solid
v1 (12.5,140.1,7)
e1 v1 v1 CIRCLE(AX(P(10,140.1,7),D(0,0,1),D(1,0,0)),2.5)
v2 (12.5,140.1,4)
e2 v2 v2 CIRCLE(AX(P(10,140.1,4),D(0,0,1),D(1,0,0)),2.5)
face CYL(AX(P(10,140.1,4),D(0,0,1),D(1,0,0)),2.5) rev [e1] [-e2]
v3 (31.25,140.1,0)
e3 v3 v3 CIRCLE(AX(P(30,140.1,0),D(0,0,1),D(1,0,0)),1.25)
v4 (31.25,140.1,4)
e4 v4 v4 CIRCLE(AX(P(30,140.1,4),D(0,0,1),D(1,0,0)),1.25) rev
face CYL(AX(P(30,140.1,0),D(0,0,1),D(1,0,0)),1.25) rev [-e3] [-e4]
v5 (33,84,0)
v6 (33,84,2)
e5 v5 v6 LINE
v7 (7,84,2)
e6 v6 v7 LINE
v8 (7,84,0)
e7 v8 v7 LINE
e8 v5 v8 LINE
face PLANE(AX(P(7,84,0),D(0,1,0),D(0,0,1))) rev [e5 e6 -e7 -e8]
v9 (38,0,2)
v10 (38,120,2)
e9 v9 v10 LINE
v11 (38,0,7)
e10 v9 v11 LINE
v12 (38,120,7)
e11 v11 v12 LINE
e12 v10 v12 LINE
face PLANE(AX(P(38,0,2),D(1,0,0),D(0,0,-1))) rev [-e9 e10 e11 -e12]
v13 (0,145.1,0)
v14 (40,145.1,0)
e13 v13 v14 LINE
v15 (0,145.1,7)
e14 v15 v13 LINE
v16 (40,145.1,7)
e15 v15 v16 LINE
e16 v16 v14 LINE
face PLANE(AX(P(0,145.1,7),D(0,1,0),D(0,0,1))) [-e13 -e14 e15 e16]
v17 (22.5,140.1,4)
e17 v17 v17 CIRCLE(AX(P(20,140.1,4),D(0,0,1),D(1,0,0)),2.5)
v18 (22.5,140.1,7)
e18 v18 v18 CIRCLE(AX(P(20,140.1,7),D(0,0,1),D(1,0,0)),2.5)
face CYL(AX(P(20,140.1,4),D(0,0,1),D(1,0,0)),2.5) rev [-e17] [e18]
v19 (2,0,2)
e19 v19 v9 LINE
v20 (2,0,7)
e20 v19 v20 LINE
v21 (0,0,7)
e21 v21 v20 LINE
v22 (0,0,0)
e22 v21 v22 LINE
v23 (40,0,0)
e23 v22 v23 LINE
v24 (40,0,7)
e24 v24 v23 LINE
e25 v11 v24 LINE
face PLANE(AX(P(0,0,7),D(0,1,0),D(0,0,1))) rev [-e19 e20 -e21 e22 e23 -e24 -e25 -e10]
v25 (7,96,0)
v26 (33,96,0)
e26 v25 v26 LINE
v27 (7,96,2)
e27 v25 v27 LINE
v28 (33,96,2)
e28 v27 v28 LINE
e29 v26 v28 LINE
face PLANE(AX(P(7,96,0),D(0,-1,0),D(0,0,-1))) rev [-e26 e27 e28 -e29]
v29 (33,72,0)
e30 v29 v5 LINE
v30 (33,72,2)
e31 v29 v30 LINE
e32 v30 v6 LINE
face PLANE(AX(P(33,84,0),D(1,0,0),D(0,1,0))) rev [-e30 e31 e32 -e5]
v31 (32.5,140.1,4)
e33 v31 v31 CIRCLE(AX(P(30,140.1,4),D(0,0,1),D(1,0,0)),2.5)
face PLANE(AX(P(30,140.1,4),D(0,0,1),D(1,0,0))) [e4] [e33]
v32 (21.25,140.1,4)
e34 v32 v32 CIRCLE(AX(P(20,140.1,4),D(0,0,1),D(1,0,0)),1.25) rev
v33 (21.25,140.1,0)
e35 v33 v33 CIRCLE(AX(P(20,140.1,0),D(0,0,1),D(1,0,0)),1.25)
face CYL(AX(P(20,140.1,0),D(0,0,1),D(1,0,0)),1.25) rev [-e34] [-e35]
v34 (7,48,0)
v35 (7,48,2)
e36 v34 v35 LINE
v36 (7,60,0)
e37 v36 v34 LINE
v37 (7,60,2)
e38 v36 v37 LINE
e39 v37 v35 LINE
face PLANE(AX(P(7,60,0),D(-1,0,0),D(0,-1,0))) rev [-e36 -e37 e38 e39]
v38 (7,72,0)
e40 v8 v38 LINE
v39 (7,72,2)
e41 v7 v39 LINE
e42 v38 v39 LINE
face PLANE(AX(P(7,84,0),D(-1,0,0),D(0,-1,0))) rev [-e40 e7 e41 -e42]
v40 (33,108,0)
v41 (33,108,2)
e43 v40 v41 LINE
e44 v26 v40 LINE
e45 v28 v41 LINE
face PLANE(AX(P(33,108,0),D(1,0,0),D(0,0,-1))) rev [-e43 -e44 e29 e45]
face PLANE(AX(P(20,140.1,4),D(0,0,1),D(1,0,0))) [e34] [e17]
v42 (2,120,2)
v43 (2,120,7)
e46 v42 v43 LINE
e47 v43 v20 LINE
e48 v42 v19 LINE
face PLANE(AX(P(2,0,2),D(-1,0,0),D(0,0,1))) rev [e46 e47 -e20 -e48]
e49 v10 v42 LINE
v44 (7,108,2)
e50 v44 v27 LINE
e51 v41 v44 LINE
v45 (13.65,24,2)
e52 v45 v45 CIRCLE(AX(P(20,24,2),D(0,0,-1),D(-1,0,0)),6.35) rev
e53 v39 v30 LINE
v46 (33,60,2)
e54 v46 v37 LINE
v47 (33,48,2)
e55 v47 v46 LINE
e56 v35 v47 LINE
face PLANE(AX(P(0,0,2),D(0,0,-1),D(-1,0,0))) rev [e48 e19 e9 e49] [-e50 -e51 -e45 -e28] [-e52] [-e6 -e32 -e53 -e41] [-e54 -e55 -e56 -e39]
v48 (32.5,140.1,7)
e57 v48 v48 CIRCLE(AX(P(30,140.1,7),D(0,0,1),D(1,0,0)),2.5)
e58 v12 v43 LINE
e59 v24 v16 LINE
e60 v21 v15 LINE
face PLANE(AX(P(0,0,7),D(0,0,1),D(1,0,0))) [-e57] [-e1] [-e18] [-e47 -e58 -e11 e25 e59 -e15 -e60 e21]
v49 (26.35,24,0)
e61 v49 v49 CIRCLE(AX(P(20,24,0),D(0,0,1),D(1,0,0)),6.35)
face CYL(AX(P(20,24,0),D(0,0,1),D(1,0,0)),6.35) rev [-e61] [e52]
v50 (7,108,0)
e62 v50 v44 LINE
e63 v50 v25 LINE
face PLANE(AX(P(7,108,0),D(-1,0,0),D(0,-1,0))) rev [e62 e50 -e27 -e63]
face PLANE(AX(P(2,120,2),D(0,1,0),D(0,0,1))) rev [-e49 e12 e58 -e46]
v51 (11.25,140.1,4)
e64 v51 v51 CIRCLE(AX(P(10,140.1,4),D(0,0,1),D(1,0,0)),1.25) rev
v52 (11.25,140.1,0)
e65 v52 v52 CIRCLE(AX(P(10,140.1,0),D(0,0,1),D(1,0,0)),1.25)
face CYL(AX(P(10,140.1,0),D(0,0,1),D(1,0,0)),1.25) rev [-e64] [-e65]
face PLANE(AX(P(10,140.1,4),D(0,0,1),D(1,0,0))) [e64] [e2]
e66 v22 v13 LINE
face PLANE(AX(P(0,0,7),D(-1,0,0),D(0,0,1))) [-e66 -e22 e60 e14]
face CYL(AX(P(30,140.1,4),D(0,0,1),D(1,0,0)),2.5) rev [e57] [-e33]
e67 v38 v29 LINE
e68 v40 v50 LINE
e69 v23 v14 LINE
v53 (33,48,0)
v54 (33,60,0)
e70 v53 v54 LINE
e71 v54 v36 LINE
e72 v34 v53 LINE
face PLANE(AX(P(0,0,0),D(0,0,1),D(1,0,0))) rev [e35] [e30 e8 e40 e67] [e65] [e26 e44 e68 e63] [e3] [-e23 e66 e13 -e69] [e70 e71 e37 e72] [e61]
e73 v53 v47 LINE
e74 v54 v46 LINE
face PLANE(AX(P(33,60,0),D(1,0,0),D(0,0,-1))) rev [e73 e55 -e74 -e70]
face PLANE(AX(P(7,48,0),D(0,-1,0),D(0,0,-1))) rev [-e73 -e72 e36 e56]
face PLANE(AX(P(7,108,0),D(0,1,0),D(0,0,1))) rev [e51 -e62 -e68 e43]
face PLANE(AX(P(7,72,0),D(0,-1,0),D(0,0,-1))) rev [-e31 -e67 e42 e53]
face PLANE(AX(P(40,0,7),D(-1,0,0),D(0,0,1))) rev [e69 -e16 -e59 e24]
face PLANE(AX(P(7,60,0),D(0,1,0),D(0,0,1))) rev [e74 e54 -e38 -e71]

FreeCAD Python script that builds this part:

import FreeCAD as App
import Part
import Sketcher

doc = App.newDocument("Part")
params = doc.addObject("Spreadsheet::Sheet", "Params")
for row, (alias, value) in enumerate([
    ("sketch1_width", "40 mm"),
    ("sketch1_height", "145.1 mm"),
    ("pad1_length", "7 mm"),
    ("sketch2_diameter", "2.5 mm"),
    ("pocket1_length", "7 mm"),
    ("sketch3_diameter", "5 mm"),
    ("pocket2_length", "3 mm"),
    ("sketch4_diameter", "12.7 mm"),
    ("sketch5_width", "36 mm"),
    ("sketch5_height", "120 mm"),
    ("pocket4_length", "5 mm"),
    ("sketch6_width", "26 mm"),
    ("sketch6_height", "12 mm"),
], start=1):
    params.set(f"A{row}", alias)
    params.set(f"B{row}", "=" + value)
    params.setAlias(f"B{row}", alias)

body = doc.addObject("PartDesign::Body", "Body")

# Sketch on XY plane
sketch1 = doc.addObject("Sketcher::SketchObject", "Sketch")
body.addObject(sketch1)
sketch1.AttachmentSupport = (doc.XY_Plane, [""])
sketch1.MapMode = "FlatFace"
sketch1.addGeometry([
    Part.LineSegment(App.Vector(0, 145, 0), App.Vector(0, 0, 0)),
    Part.LineSegment(App.Vector(0, 0, 0), App.Vector(40, 0, 0)),
    Part.LineSegment(App.Vector(40, 0, 0), App.Vector(40, 145, 0)),
    Part.LineSegment(App.Vector(40, 145, 0), App.Vector(0, 145, 0)),
], False)
sketch1.addConstraint([
    Sketcher.Constraint("Coincident", 0, 2, 1, 1),
    Sketcher.Constraint("Coincident", 1, 2, 2, 1),
    Sketcher.Constraint("Coincident", 2, 2, 3, 1),
    Sketcher.Constraint("Coincident", 3, 2, 0, 1),
    Sketcher.Constraint("Vertical", 0),
    Sketcher.Constraint("Horizontal", 1),
    Sketcher.Constraint("Vertical", 2),
    Sketcher.Constraint("Horizontal", 3),
    Sketcher.Constraint("Coincident", 0, 2, -1, 1),
    Sketcher.Constraint("DistanceX", 1, 1, 1, 2, 40.0),
    Sketcher.Constraint("DistanceY", 0, 2, 0, 1, 145.1),
])
sketch1.setExpression("Constraints[9]", "Params.sketch1_width")
sketch1.setExpression("Constraints[10]", "Params.sketch1_height")
pad1 = doc.addObject("PartDesign::Pad", "Pad")
body.addObject(pad1)
pad1.Profile = sketch1
pad1.setExpression("Length", "Params.pad1_length")

# Sketch on XY plane
sketch2 = doc.addObject("Sketcher::SketchObject", "Sketch001")
body.addObject(sketch2)
sketch2.AttachmentSupport = (doc.XY_Plane, [""])
sketch2.MapMode = "FlatFace"
sketch2.AttachmentOffset = App.Placement(App.Vector(0, 0, 7), App.Rotation())
sketch2.addGeometry([
    Part.Circle(App.Vector(20, 140.1, 0), App.Vector(0, 0, 1), 1.2),
    Part.Circle(App.Vector(10, 140.1, 0), App.Vector(0, 0, 1), 1.2),
    Part.Circle(App.Vector(30, 140.1, 0), App.Vector(0, 0, 1), 1.2),
], False)
sketch2.addConstraint([
    Sketcher.Constraint("Equal", 0, 1),
    Sketcher.Constraint("Equal", 1, 2),
    Sketcher.Constraint("Horizontal", 0, 3, 1, 3),
    Sketcher.Constraint("Horizontal", 1, 3, 2, 3),
    Sketcher.Constraint("Diameter", 0, 2.5),
    Sketcher.Constraint("DistanceX", -1, 1, 0, 3, 20.0),
    Sketcher.Constraint("DistanceX", -1, 1, 1, 3, 10.0),
    Sketcher.Constraint("DistanceX", -1, 1, 2, 3, 30.0),
    Sketcher.Constraint("DistanceY", -1, 1, 0, 3, 140.1),
])
sketch2.setExpression("Constraints[4]", "Params.sketch2_diameter")
pocket1 = doc.addObject("PartDesign::Pocket", "Pocket")
body.addObject(pocket1)
pocket1.Profile = sketch2
pocket1.setExpression("Length", "Params.pocket1_length")

# Sketch on XY plane
sketch3 = doc.addObject("Sketcher::SketchObject", "Sketch002")
body.addObject(sketch3)
sketch3.AttachmentSupport = (doc.XY_Plane, [""])
sketch3.MapMode = "FlatFace"
sketch3.AttachmentOffset = App.Placement(App.Vector(0, 0, 7), App.Rotation())
sketch3.addGeometry([
    Part.Circle(App.Vector(10, 140.1, 0), App.Vector(0, 0, 1), 2.5),
    Part.Circle(App.Vector(20, 140.1, 0), App.Vector(0, 0, 1), 2.5),
    Part.Circle(App.Vector(30, 140.1, 0), App.Vector(0, 0, 1), 2.5),
], False)
sketch3.addConstraint([
    Sketcher.Constraint("Equal", 0, 1),
    Sketcher.Constraint("Equal", 1, 2),
    Sketcher.Constraint("Horizontal", 0, 3, 1, 3),
    Sketcher.Constraint("Horizontal", 1, 3, 2, 3),
    Sketcher.Constraint("Diameter", 0, 5.0),
    Sketcher.Constraint("DistanceX", -1, 1, 0, 3, 10.0),
    Sketcher.Constraint("DistanceX", -1, 1, 1, 3, 20.0),
    Sketcher.Constraint("DistanceX", -1, 1, 2, 3, 30.0),
    Sketcher.Constraint("DistanceY", -1, 1, 0, 3, 140.1),
])
sketch3.setExpression("Constraints[4]", "Params.sketch3_diameter")
pocket2 = doc.addObject("PartDesign::Pocket", "Pocket001")
body.addObject(pocket2)
pocket2.Profile = sketch3
pocket2.setExpression("Length", "Params.pocket2_length")

# Sketch on XY plane
sketch4 = doc.addObject("Sketcher::SketchObject", "Sketch003")
body.addObject(sketch4)
sketch4.AttachmentSupport = (doc.XY_Plane, [""])
sketch4.MapMode = "FlatFace"
sketch4.AttachmentOffset = App.Placement(App.Vector(0, 0, 7), App.Rotation())
sketch4.addGeometry(Part.Circle(App.Vector(20, 24, 0), App.Vector(0, 0, 1), 6), False)
sketch4.addConstraint([
    Sketcher.Constraint("Diameter", 0, 12.7),
    Sketcher.Constraint("DistanceX", -1, 1, 0, 3, 20.0),
    Sketcher.Constraint("DistanceY", -1, 1, 0, 3, 24.0),
])
sketch4.setExpression("Constraints[0]", "Params.sketch4_diameter")
pocket3 = doc.addObject("PartDesign::Pocket", "Pocket002")
body.addObject(pocket3)
pocket3.Profile = sketch4
pocket3.Type = "ThroughAll"

# Sketch on XY plane
sketch5 = doc.addObject("Sketcher::SketchObject", "Sketch004")
body.addObject(sketch5)
sketch5.AttachmentSupport = (doc.XY_Plane, [""])
sketch5.MapMode = "FlatFace"
sketch5.AttachmentOffset = App.Placement(App.Vector(0, 0, 7), App.Rotation())
sketch5.addGeometry([
    Part.LineSegment(App.Vector(2, 120, 0), App.Vector(2, 0, 0)),
    Part.LineSegment(App.Vector(2, 0, 0), App.Vector(38, 0, 0)),
    Part.LineSegment(App.Vector(38, 0, 0), App.Vector(38, 120, 0)),
    Part.LineSegment(App.Vector(38, 120, 0), App.Vector(2, 120, 0)),
], False)
sketch5.addConstraint([
    Sketcher.Constraint("Coincident", 0, 2, 1, 1),
    Sketcher.Constraint("Coincident", 1, 2, 2, 1),
    Sketcher.Constraint("Coincident", 2, 2, 3, 1),
    Sketcher.Constraint("Coincident", 3, 2, 0, 1),
    Sketcher.Constraint("Vertical", 0),
    Sketcher.Constraint("Horizontal", 1),
    Sketcher.Constraint("Vertical", 2),
    Sketcher.Constraint("Horizontal", 3),
    Sketcher.Constraint("PointOnObject", 0, 2, -1),
    Sketcher.Constraint("DistanceX", 1, 1, 1, 2, 36.0),
    Sketcher.Constraint("DistanceY", 0, 2, 0, 1, 120.0),
    Sketcher.Constraint("DistanceX", -1, 1, 0, 2, 2.0),
])
sketch5.setExpression("Constraints[9]", "Params.sketch5_width")
sketch5.setExpression("Constraints[10]", "Params.sketch5_height")
pocket4 = doc.addObject("PartDesign::Pocket", "Pocket003")
body.addObject(pocket4)
pocket4.Profile = sketch5
pocket4.setExpression("Length", "Params.pocket4_length")

# Sketch on XY plane
sketch6 = doc.addObject("Sketcher::SketchObject", "Sketch005")
body.addObject(sketch6)
sketch6.AttachmentSupport = (doc.XY_Plane, [""])
sketch6.MapMode = "FlatFace"
sketch6.AttachmentOffset = App.Placement(App.Vector(0, 0, 2), App.Rotation())
sketch6.addGeometry([
    Part.LineSegment(App.Vector(7, 108, 0), App.Vector(7, 96, 0)),  # 0
    Part.LineSegment(App.Vector(7, 96, 0), App.Vector(33, 96, 0)),  # 1
    Part.LineSegment(App.Vector(33, 96, 0), App.Vector(33, 108, 0)),  # 2
    Part.LineSegment(App.Vector(33, 108, 0), App.Vector(7, 108, 0)),  # 3
    Part.LineSegment(App.Vector(7, 84, 0), App.Vector(7, 72, 0)),  # 4
    Part.LineSegment(App.Vector(7, 72, 0), App.Vector(33, 72, 0)),  # 5
    Part.LineSegment(App.Vector(33, 72, 0), App.Vector(33, 84, 0)),  # 6
    Part.LineSegment(App.Vector(33, 84, 0), App.Vector(7, 84, 0)),  # 7
    Part.LineSegment(App.Vector(7, 60, 0), App.Vector(7, 48, 0)),  # 8
    Part.LineSegment(App.Vector(7, 48, 0), App.Vector(33, 48, 0)),  # 9
    Part.LineSegment(App.Vector(33, 48, 0), App.Vector(33, 60, 0)),  # 10
    Part.LineSegment(App.Vector(33, 60, 0), App.Vector(7, 60, 0)),  # 11
], False)
sketch6.addConstraint([
    Sketcher.Constraint("Coincident", 0, 2, 1, 1),
    Sketcher.Constraint("Coincident", 1, 2, 2, 1),
    Sketcher.Constraint("Coincident", 2, 2, 3, 1),
    Sketcher.Constraint("Coincident", 3, 2, 0, 1),
    Sketcher.Constraint("Coincident", 4, 2, 5, 1),
    Sketcher.Constraint("Coincident", 5, 2, 6, 1),
    Sketcher.Constraint("Coincident", 6, 2, 7, 1),
    Sketcher.Constraint("Coincident", 7, 2, 4, 1),
    Sketcher.Constraint("Coincident", 8, 2, 9, 1),
    Sketcher.Constraint("Coincident", 9, 2, 10, 1),
    Sketcher.Constraint("Coincident", 10, 2, 11, 1),
    Sketcher.Constraint("Coincident", 11, 2, 8, 1),
    Sketcher.Constraint("Vertical", 0),
    Sketcher.Constraint("Horizontal", 1),
    Sketcher.Constraint("Vertical", 2),
    Sketcher.Constraint("Horizontal", 3),
    Sketcher.Constraint("Vertical", 4),
    Sketcher.Constraint("Horizontal", 5),
    Sketcher.Constraint("Vertical", 6),
    Sketcher.Constraint("Horizontal", 7),
    Sketcher.Constraint("Vertical", 8),
    Sketcher.Constraint("Horizontal", 9),
    Sketcher.Constraint("Vertical", 10),
    Sketcher.Constraint("Horizontal", 11),
    Sketcher.Constraint("Vertical", 3, 2, 4, 2),
    Sketcher.Constraint("Vertical", 2, 2, 5, 2),
    Sketcher.Constraint("Vertical", 7, 2, 8, 2),
    Sketcher.Constraint("Vertical", 6, 2, 9, 2),
    Sketcher.Constraint("Equal", 2, 4),
    Sketcher.Constraint("Equal", 6, 8),
    Sketcher.Constraint("DistanceX", 1, 1, 1, 2, 26.0),
    Sketcher.Constraint("DistanceY", 0, 2, 0, 1, 12.0),
    Sketcher.Constraint("DistanceX", -1, 1, 0, 2, 7.0),
    Sketcher.Constraint("DistanceY", -1, 1, 0, 2, 96.0),
    Sketcher.Constraint("DistanceY", -1, 1, 4, 2, 72.0),
    Sketcher.Constraint("DistanceY", -1, 1, 8, 2, 48.0),
])
sketch6.setExpression("Constraints[30]", "Params.sketch6_width")
sketch6.setExpression("Constraints[31]", "Params.sketch6_height")
pocket5 = doc.addObject("PartDesign::Pocket", "Pocket004")
body.addObject(pocket5)
pocket5.Profile = sketch6
pocket5.Type = "ThroughAll"

doc.recompute()
